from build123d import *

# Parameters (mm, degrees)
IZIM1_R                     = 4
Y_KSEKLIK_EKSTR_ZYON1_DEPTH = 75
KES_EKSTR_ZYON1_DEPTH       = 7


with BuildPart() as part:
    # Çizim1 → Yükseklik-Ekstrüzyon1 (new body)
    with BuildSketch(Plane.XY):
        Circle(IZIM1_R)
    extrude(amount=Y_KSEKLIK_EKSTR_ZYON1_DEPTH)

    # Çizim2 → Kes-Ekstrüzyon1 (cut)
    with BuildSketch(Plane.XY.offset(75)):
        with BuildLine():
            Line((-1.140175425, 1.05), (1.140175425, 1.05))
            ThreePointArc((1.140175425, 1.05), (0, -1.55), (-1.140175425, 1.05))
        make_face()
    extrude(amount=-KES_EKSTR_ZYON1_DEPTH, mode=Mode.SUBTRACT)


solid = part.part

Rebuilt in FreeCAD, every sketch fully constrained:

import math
import FreeCAD as App
import Part
import Sketcher

V = App.Vector

doc = App.newDocument("Part")
body = doc.addObject("PartDesign::Body", "Body")

# Sketch on XY plane
sketch1 = body.newObject("Sketcher::SketchObject", "Sketch")
sketch1.AttachmentSupport = (doc.getObject("XY_Plane"), [""])
sketch1.MapMode = "FlatFace"
sketch1.addGeometry(Part.Circle(V(0, 0, 0), V(0, 0, 1), 4), False)
sketch1.addConstraint([
    Sketcher.Constraint("Coincident", 0, 3, -1, 1),
    Sketcher.Constraint("Diameter", 0, 8.0),
])
pad1 = body.newObject("PartDesign::Pad", "Pad")
pad1.Profile = sketch1
pad1.Length = 75

# Sketch on XY plane
sketch2 = body.newObject("Sketcher::SketchObject", "Sketch001")
sketch2.AttachmentSupport = (doc.getObject("XY_Plane"), [""])
sketch2.MapMode = "FlatFace"
sketch2.AttachmentOffset = App.Placement(V(0, 0, 75), App.Rotation())
sketch2.addGeometry([
    Part.LineSegment(V(1.1, 1.1, 0), V(-1.1, 1.1, 0)),
    Part.ArcOfCircle(Part.Circle(V(0, 0, 0), V(0, 0, 1), 1.6), math.radians(137), math.radians(403)),
], False)
sketch2.addConstraint([
    Sketcher.Constraint("Coincident", 0, 1, 1, 2),
    Sketcher.Constraint("Coincident", 1, 1, 0, 2),
    Sketcher.Constraint("Horizontal", 0),
    Sketcher.Constraint("Coincident", 1, 3, -1, 1),
    Sketcher.Constraint("Radius", 1, 1.55),
    Sketcher.Constraint("DistanceY", -1, 1, 0, 1, 1.05),
])
pocket1 = body.newObject("PartDesign::Pocket", "Pocket")
pocket1.Profile = sketch2
pocket1.Length = 7

doc.recompute()
